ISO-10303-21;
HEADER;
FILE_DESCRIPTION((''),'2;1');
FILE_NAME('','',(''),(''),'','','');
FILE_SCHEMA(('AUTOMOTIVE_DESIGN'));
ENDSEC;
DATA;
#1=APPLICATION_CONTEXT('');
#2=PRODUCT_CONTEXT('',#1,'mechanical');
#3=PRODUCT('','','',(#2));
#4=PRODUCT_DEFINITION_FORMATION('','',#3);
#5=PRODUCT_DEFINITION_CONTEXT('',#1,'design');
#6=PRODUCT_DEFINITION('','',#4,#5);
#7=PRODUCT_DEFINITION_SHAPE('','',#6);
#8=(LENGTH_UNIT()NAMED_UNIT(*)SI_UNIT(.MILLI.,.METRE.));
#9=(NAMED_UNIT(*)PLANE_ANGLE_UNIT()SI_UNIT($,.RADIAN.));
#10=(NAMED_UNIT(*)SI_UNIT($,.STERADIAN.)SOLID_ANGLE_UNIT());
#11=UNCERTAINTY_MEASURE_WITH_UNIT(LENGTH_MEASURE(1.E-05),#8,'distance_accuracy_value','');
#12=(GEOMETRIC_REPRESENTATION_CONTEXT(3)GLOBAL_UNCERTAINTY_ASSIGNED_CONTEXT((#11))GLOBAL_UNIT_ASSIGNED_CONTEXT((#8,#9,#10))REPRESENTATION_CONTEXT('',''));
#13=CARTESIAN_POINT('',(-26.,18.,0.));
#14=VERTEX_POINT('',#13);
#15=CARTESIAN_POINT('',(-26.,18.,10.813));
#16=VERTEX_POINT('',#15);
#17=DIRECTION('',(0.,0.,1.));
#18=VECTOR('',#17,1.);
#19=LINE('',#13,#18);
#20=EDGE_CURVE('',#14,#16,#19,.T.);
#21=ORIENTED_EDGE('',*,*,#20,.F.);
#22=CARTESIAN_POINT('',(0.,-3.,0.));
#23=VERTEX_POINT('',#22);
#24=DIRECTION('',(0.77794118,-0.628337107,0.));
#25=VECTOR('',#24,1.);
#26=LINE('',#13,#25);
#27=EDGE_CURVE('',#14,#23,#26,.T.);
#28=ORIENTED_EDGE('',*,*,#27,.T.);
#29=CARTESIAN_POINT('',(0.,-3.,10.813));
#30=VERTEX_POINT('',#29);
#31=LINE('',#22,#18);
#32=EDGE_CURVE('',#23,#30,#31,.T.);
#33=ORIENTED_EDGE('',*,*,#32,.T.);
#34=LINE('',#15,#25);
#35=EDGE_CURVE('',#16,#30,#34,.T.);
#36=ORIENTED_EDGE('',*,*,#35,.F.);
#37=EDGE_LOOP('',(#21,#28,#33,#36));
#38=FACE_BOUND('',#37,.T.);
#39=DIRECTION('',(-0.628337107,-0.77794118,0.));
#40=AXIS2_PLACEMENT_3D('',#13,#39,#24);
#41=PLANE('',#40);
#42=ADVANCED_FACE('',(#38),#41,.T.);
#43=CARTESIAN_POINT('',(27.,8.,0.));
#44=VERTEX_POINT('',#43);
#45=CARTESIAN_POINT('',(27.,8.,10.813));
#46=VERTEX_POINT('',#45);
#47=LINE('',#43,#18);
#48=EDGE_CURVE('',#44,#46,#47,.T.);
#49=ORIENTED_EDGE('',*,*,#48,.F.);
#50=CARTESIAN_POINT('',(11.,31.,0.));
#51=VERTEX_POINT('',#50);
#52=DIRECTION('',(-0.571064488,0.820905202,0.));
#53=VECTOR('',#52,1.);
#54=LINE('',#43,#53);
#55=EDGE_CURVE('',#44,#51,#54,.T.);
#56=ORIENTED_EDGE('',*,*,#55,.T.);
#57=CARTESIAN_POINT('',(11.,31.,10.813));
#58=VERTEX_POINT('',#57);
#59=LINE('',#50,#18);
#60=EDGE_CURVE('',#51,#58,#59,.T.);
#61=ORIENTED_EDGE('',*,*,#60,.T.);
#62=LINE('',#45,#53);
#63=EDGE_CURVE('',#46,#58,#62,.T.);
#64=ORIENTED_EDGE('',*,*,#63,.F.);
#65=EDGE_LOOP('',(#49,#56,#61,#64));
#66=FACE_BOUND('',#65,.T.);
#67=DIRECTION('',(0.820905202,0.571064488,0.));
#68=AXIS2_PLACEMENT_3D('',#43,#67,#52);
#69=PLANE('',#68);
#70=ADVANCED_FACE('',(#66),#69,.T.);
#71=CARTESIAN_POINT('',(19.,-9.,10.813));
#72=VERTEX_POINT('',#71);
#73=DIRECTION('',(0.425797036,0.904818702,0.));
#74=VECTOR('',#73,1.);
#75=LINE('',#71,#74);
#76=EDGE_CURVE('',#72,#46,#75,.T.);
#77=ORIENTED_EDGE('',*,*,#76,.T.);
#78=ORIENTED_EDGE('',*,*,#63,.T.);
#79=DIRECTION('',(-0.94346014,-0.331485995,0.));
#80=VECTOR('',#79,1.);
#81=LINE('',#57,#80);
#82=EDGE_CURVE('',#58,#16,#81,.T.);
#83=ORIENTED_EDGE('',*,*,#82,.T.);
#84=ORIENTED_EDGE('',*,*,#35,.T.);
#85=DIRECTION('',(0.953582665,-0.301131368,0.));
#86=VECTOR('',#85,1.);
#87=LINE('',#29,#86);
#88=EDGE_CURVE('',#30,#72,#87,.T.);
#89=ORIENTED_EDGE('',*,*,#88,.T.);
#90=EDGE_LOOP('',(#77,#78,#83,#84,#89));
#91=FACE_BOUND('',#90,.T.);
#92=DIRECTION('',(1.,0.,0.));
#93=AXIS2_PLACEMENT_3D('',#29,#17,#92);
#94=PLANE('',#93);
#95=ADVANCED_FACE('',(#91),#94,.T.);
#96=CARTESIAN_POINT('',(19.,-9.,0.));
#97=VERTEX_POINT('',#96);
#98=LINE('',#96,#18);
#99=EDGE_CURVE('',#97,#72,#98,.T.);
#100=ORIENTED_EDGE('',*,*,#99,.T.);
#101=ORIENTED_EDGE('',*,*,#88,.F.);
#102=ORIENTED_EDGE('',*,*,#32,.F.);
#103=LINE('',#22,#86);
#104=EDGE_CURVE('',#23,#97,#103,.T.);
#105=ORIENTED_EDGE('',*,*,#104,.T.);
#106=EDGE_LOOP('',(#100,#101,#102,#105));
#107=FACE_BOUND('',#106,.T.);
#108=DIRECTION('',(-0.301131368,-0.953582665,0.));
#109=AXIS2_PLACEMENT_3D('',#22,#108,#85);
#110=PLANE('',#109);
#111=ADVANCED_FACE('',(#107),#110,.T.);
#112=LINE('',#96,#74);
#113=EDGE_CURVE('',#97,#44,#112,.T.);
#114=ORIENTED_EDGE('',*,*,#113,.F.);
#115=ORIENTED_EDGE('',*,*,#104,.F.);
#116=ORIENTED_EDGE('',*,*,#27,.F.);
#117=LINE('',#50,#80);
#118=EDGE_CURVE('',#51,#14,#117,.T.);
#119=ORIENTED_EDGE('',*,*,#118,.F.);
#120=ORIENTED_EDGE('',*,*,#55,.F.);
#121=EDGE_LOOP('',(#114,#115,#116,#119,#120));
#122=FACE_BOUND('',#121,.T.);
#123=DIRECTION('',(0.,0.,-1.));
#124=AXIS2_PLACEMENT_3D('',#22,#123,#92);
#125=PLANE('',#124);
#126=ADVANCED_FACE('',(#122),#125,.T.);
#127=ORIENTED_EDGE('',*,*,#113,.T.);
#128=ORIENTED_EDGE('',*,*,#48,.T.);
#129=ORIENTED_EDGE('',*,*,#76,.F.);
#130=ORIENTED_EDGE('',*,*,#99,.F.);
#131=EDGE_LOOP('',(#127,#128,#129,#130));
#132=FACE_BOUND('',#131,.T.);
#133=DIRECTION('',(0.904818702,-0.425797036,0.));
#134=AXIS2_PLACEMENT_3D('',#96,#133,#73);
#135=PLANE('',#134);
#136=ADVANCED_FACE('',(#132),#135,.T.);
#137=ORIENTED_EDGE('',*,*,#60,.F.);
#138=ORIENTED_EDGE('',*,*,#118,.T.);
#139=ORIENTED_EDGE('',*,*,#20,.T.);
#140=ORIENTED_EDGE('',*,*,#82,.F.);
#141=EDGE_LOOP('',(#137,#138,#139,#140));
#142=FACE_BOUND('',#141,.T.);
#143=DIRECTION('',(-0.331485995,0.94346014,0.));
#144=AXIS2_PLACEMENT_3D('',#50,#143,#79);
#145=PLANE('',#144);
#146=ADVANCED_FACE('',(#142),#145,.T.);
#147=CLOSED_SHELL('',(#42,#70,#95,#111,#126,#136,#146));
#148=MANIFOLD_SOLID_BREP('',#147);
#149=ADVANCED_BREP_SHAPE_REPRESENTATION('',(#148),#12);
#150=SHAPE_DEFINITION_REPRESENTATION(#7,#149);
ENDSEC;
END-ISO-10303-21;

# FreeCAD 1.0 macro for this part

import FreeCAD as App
import Part
import Sketcher
from FreeCAD import Vector
Q = App.Units.Quantity

doc = App.newDocument("Part")
body = doc.addObject("PartDesign::Body", "Body")

# Sketch on XY plane
sketch1 = body.newObject("Sketcher::SketchObject", "Sketch")
sketch1.AttachmentSupport = (doc.getObject("XY_Plane"), [""])
sketch1.MapMode = "FlatFace"
sketch1.addGeometry([
    Part.LineSegment(Vector(0, -3, 0), Vector(19, -9, 0)),  # 0
    Part.LineSegment(Vector(19, -9, 0), Vector(27, 8, 0)),  # 1
    Part.LineSegment(Vector(27, 8, 0), Vector(11, 31, 0)),  # 2
    Part.LineSegment(Vector(11, 31, 0), Vector(-26, 18, 0)),  # 3
    Part.LineSegment(Vector(-26, 18, 0), Vector(0, -3, 0)),  # 4
], False)
sketch1.addConstraint([
    Sketcher.Constraint("Coincident", 0, 2, 1, 1),
    Sketcher.Constraint("Coincident", 1, 2, 2, 1),
    Sketcher.Constraint("Coincident", 2, 2, 3, 1),
    Sketcher.Constraint("Coincident", 3, 2, 4, 1),
    Sketcher.Constraint("Coincident", 4, 2, 0, 1),
    Sketcher.Constraint("PointOnObject", 4, 2, -2),
    Sketcher.Constraint("DistanceX", -1, 1, 0, 2, Q("19 mm")),
    Sketcher.Constraint("DistanceY", 0, 2, -1, 1, Q("9 mm")),
    Sketcher.Constraint("DistanceX", -1, 1, 1, 2, Q("27 mm")),
    Sketcher.Constraint("DistanceY", -1, 1, 1, 2, Q("8 mm")),
    Sketcher.Constraint("DistanceX", -1, 1, 2, 2, Q("11 mm")),
    Sketcher.Constraint("DistanceY", -1, 1, 2, 2, Q("31 mm")),
    Sketcher.Constraint("DistanceX", 3, 2, -1, 1, Q("26 mm")),
    Sketcher.Constraint("DistanceY", -1, 1, 3, 2, Q("18 mm")),
    Sketcher.Constraint("DistanceY", 4, 2, -1, 1, Q("3 mm")),
])
pad1 = body.newObject("PartDesign::Pad", "Pad")
pad1.Profile = sketch1
pad1.Length = 10.813

doc.recompute()
